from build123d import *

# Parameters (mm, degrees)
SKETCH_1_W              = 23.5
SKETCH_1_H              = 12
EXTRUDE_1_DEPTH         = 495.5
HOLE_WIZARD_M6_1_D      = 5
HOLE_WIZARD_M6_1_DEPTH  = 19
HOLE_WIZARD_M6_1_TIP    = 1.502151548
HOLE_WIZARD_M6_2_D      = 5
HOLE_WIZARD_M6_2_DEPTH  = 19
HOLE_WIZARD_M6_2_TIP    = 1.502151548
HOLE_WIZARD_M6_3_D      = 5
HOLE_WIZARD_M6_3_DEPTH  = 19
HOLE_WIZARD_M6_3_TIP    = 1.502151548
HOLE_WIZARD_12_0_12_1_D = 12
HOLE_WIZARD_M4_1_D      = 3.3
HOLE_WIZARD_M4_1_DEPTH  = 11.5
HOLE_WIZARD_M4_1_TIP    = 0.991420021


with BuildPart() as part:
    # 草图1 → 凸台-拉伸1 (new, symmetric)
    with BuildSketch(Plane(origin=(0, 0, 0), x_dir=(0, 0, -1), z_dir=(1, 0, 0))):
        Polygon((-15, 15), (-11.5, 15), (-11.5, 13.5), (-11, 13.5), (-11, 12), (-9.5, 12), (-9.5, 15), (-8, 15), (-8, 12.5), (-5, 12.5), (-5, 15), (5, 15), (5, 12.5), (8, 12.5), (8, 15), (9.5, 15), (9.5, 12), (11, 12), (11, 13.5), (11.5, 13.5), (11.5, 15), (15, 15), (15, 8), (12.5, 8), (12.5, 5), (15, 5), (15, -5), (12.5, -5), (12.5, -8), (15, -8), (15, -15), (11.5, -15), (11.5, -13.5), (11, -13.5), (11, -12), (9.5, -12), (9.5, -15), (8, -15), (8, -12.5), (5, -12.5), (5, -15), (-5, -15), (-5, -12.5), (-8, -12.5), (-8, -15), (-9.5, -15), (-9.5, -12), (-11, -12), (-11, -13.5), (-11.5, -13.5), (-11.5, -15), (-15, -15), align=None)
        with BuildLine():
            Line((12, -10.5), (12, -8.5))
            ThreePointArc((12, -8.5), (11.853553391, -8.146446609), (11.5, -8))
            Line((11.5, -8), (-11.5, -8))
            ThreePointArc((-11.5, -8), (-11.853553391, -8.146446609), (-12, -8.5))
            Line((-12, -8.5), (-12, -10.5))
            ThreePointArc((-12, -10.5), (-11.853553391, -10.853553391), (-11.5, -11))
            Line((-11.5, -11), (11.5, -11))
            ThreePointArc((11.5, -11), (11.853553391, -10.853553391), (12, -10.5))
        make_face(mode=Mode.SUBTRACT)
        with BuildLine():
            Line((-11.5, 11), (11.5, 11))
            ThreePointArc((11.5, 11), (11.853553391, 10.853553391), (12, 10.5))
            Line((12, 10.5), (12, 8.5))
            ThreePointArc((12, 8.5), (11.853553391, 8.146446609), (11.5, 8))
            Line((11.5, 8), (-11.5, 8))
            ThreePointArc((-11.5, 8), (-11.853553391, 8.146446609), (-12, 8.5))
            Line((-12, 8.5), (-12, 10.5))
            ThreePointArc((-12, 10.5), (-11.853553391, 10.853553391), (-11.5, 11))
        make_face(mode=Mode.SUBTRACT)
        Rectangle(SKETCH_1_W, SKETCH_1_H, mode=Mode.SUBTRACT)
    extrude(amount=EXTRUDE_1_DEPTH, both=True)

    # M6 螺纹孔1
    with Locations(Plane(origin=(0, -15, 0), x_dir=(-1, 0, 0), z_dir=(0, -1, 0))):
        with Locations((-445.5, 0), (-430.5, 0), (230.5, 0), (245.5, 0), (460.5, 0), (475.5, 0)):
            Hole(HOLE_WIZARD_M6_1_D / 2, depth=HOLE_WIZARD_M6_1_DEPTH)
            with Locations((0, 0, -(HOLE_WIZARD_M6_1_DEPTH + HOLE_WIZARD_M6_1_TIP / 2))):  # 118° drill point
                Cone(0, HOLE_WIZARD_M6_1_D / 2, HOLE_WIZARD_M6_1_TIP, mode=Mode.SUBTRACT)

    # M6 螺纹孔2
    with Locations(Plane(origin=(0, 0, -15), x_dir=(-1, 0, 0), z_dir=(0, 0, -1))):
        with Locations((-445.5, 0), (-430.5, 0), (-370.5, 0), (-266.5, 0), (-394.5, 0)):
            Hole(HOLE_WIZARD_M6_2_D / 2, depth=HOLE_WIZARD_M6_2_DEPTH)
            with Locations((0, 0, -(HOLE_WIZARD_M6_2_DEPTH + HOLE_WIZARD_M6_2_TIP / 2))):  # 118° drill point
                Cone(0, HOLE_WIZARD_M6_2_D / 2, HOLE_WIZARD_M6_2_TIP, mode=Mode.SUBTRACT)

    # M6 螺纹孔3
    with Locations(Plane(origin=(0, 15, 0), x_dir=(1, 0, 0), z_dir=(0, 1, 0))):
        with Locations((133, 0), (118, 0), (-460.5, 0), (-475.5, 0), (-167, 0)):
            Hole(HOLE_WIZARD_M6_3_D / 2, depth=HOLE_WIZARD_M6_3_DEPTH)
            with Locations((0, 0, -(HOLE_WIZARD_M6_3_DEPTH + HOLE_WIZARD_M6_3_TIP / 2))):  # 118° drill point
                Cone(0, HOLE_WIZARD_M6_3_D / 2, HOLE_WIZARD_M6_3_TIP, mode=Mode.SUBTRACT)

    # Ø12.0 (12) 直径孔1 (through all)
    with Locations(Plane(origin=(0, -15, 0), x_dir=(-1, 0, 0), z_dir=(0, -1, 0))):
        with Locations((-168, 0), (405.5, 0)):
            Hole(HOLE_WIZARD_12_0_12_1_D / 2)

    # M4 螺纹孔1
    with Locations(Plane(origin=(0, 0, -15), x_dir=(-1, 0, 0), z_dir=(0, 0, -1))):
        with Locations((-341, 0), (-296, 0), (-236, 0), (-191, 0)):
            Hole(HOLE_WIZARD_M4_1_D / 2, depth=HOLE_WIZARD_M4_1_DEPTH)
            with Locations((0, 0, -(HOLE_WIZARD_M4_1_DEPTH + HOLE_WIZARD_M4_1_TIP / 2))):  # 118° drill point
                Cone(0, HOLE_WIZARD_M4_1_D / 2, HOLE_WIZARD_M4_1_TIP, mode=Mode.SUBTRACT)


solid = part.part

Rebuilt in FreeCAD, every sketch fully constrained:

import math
import FreeCAD as App
import Part
import Sketcher
from FreeCAD import Vector

doc = App.newDocument("Part")
body = doc.addObject("PartDesign::Body", "Body")

sketch1 = doc.addObject("Sketcher::SketchObject", "Sketch")
body.addObject(sketch1)
sketch1.AttachmentSupport = (doc.YZ_Plane, [""])
sketch1.MapMode = "FlatFace"
sketch1.addGeometry(Part.LineSegment(Vector(15, 11.5, 0), Vector(15, 15, 0)), False)
sketch1.addGeometry(Part.LineSegment(Vector(15, 15, 0), Vector(-15, 15, 0)), False)
sketch1.addGeometry(Part.LineSegment(Vector(-15, 15, 0), Vector(-15, 11.5, 0)), False)
sketch1.addGeometry(Part.LineSegment(Vector(-15, 11.5, 0), Vector(-13.5, 11.5, 0)), False)
sketch1.addGeometry(Part.LineSegment(Vector(-13.5, 11.5, 0), Vector(-13.5, 11, 0)), False)
sketch1.addGeometry(Part.LineSegment(Vector(-13.5, 11, 0), Vector(-12, 11, 0)), False)
sketch1.addGeometry(Part.LineSegment(Vector(-12, 11, 0), Vector(-12, 9.5, 0)), False)
sketch1.addGeometry(Part.LineSegment(Vector(-12, 9.5, 0), Vector(-15, 9.5, 0)), False)
sketch1.addGeometry(Part.LineSegment(Vector(-15, 9.5, 0), Vector(-15, 8, 0)), False)
sketch1.addGeometry(Part.LineSegment(Vector(-15, 8, 0), Vector(-12.5, 8, 0)), False)
sketch1.addGeometry(Part.LineSegment(Vector(-12.5, 8, 0), Vector(-12.5, 5, 0)), False)
sketch1.addGeometry(Part.LineSegment(Vector(-12.5, 5, 0), Vector(-15, 5, 0)), False)
sketch1.addGeometry(Part.LineSegment(Vector(-15, 5, 0), Vector(-15, -5, 0)), False)
sketch1.addGeometry(Part.LineSegment(Vector(-15, -5, 0), Vector(-12.5, -5, 0)), False)
sketch1.addGeometry(Part.LineSegment(Vector(-12.5, -5, 0), Vector(-12.5, -8, 0)), False)
sketch1.addGeometry(Part.LineSegment(Vector(-12.5, -8, 0), Vector(-15, -8, 0)), False)
sketch1.addGeometry(Part.LineSegment(Vector(-15, -8, 0), Vector(-15, -9.5, 0)), False)
sketch1.addGeometry(Part.LineSegment(Vector(-15, -9.5, 0), Vector(-12, -9.5, 0)), False)
sketch1.addGeometry(Part.LineSegment(Vector(-12, -9.5, 0), Vector(-12, -11, 0)), False)
sketch1.addGeometry(Part.LineSegment(Vector(-12, -11, 0), Vector(-13.5, -11, 0)), False)
sketch1.addGeometry(Part.LineSegment(Vector(-13.5, -11, 0), Vector(-13.5, -11.5, 0)), False)
sketch1.addGeometry(Part.LineSegment(Vector(-13.5, -11.5, 0), Vector(-15, -11.5, 0)), False)
sketch1.addGeometry(Part.LineSegment(Vector(-15, -11.5, 0), Vector(-15, -15, 0)), False)
sketch1.addGeometry(Part.LineSegment(Vector(-15, -15, 0), Vector(-8, -15, 0)), False)
sketch1.addGeometry(Part.LineSegment(Vector(-8, -15, 0), Vector(-8, -12.5, 0)), False)
sketch1.addGeometry(Part.LineSegment(Vector(-8, -12.5, 0), Vector(-5, -12.5, 0)), False)
sketch1.addGeometry(Part.LineSegment(Vector(-5, -12.5, 0), Vector(-5, -15, 0)), False)
sketch1.addGeometry(Part.LineSegment(Vector(-5, -15, 0), Vector(5, -15, 0)), False)
sketch1.addGeometry(Part.LineSegment(Vector(5, -15, 0), Vector(5, -12.5, 0)), False)
sketch1.addGeometry(Part.LineSegment(Vector(5, -12.5, 0), Vector(8, -12.5, 0)), False)
sketch1.addGeometry(Part.LineSegment(Vector(8, -12.5, 0), Vector(8, -15, 0)), False)
sketch1.addGeometry(Part.LineSegment(Vector(8, -15, 0), Vector(15, -15, 0)), False)
sketch1.addGeometry(Part.LineSegment(Vector(15, -15, 0), Vector(15, -11.5, 0)), False)
sketch1.addGeometry(Part.LineSegment(Vector(15, -11.5, 0), Vector(13.5, -11.5, 0)), False)
sketch1.addGeometry(Part.LineSegment(Vector(13.5, -11.5, 0), Vector(13.5, -11, 0)), False)
sketch1.addGeometry(Part.LineSegment(Vector(13.5, -11, 0), Vector(12, -11, 0)), False)
sketch1.addGeometry(Part.LineSegment(Vector(12, -11, 0), Vector(12, -9.5, 0)), False)
sketch1.addGeometry(Part.LineSegment(Vector(12, -9.5, 0), Vector(15, -9.5, 0)), False)
sketch1.addGeometry(Part.LineSegment(Vector(15, -9.5, 0), Vector(15, -8, 0)), False)
sketch1.addGeometry(Part.LineSegment(Vector(15, -8, 0), Vector(12.5, -8, 0)), False)
sketch1.addGeometry(Part.LineSegment(Vector(12.5, -8, 0), Vector(12.5, -5, 0)), False)
sketch1.addGeometry(Part.LineSegment(Vector(12.5, -5, 0), Vector(15, -5, 0)), False)
sketch1.addGeometry(Part.LineSegment(Vector(15, -5, 0), Vector(15, 5, 0)), False)
sketch1.addGeometry(Part.LineSegment(Vector(15, 5, 0), Vector(12.5, 5, 0)), False)
sketch1.addGeometry(Part.LineSegment(Vector(12.5, 5, 0), Vector(12.5, 8, 0)), False)
sketch1.addGeometry(Part.LineSegment(Vector(12.5, 8, 0), Vector(15, 8, 0)), False)
sketch1.addGeometry(Part.LineSegment(Vector(15, 8, 0), Vector(15, 9.5, 0)), False)
sketch1.addGeometry(Part.LineSegment(Vector(15, 9.5, 0), Vector(12, 9.5, 0)), False)
sketch1.addGeometry(Part.LineSegment(Vector(12, 9.5, 0), Vector(12, 11, 0)), False)
sketch1.addGeometry(Part.LineSegment(Vector(12, 11, 0), Vector(13.5, 11, 0)), False)
sketch1.addGeometry(Part.LineSegment(Vector(13.5, 11, 0), Vector(13.5, 11.5, 0)), False)
sketch1.addGeometry(Part.LineSegment(Vector(13.5, 11.5, 0), Vector(15, 11.5, 0)), False)
sketch1.addGeometry(Part.ArcOfCircle(Part.Circle(Vector(-10.5, -11.5, 0), Vector(0, 0, 1), 0.5), math.radians(180), math.radians(270)), False)
sketch1.addGeometry(Part.LineSegment(Vector(-11, -11.5, 0), Vector(-11, 11.5, 0)), False)
sketch1.addGeometry(Part.ArcOfCircle(Part.Circle(Vector(-10.5, 11.5, 0), Vector(0, 0, 1), 0.5), math.radians(90), math.radians(180)), False)
sketch1.addGeometry(Part.LineSegment(Vector(-10.5, 12, 0), Vector(-8.5, 12, 0)), False)
sketch1.addGeometry(Part.ArcOfCircle(Part.Circle(Vector(-8.5, 11.5, 0), Vector(0, 0, 1), 0.5), math.radians(0), math.radians(90)), False)
sketch1.addGeometry(Part.LineSegment(Vector(-8, 11.5, 0), Vector(-8, -11.5, 0)), False)
sketch1.addGeometry(Part.ArcOfCircle(Part.Circle(Vector(-8.5, -11.5, 0), Vector(0, 0, 1), 0.5), math.radians(-90), math.radians(0)), False)
sketch1.addGeometry(Part.LineSegment(Vector(-8.5, -12, 0), Vector(-10.5, -12, 0)), False)
sketch1.addGeometry(Part.LineSegment(Vector(-6, 11.75, 0), Vector(6, 11.75, 0)), False)
sketch1.addGeometry(Part.LineSegment(Vector(6, 11.75, 0), Vector(6, -11.75, 0)), False)
sketch1.addGeometry(Part.LineSegment(Vector(6, -11.75, 0), Vector(-6, -11.75, 0)), False)
sketch1.addGeometry(Part.LineSegment(Vector(-6, -11.75, 0), Vector(-6, 11.75, 0)), False)
sketch1.addGeometry(Part.LineSegment(Vector(11, 11.5, 0), Vector(11, -11.5, 0)), False)
sketch1.addGeometry(Part.ArcOfCircle(Part.Circle(Vector(10.5, -11.5, 0), Vector(0, 0, 1), 0.5), math.radians(-90), math.radians(0)), False)
sketch1.addGeometry(Part.LineSegment(Vector(10.5, -12, 0), Vector(8.5, -12, 0)), False)
sketch1.addGeometry(Part.ArcOfCircle(Part.Circle(Vector(8.5, -11.5, 0), Vector(0, 0, 1), 0.5), math.radians(180), math.radians(270)), False)
sketch1.addGeometry(Part.LineSegment(Vector(8, -11.5, 0), Vector(8, 11.5, 0)), False)
sketch1.addGeometry(Part.ArcOfCircle(Part.Circle(Vector(8.5, 11.5, 0), Vector(0, 0, 1), 0.5), math.radians(90), math.radians(180)), False)
sketch1.addGeometry(Part.LineSegment(Vector(8.5, 12, 0), Vector(10.5, 12, 0)), False)
sketch1.addGeometry(Part.ArcOfCircle(Part.Circle(Vector(10.5, 11.5, 0), Vector(0, 0, 1), 0.5), math.radians(0), math.radians(90)), False)
sketch1.addConstraint(Sketcher.Constraint("Coincident", 0, 2, 1, 1))
sketch1.addConstraint(Sketcher.Constraint("Coincident", 1, 2, 2, 1))
sketch1.addConstraint(Sketcher.Constraint("Coincident", 2, 2, 3, 1))
sketch1.addConstraint(Sketcher.Constraint("Coincident", 3, 2, 4, 1))
sketch1.addConstraint(Sketcher.Constraint("Coincident", 4, 2, 5, 1))
sketch1.addConstraint(Sketcher.Constraint("Coincident", 5, 2, 6, 1))
sketch1.addConstraint(Sketcher.Constraint("Coincident", 6, 2, 7, 1))
sketch1.addConstraint(Sketcher.Constraint("Coincident", 7, 2, 8, 1))
sketch1.addConstraint(Sketcher.Constraint("Coincident", 8, 2, 9, 1))
sketch1.addConstraint(Sketcher.Constraint("Coincident", 9, 2, 10, 1))
sketch1.addConstraint(Sketcher.Constraint("Coincident", 10, 2, 11, 1))
sketch1.addConstraint(Sketcher.Constraint("Coincident", 11, 2, 12, 1))
sketch1.addConstraint(Sketcher.Constraint("Coincident", 12, 2, 13, 1))
sketch1.addConstraint(Sketcher.Constraint("Coincident", 13, 2, 14, 1))
sketch1.addConstraint(Sketcher.Constraint("Coincident", 14, 2, 15, 1))
sketch1.addConstraint(Sketcher.Constraint("Coincident", 15, 2, 16, 1))
sketch1.addConstraint(Sketcher.Constraint("Coincident", 16, 2, 17, 1))
sketch1.addConstraint(Sketcher.Constraint("Coincident", 17, 2, 18, 1))
sketch1.addConstraint(Sketcher.Constraint("Coincident", 18, 2, 19, 1))
sketch1.addConstraint(Sketcher.Constraint("Coincident", 19, 2, 20, 1))
sketch1.addConstraint(Sketcher.Constraint("Coincident", 20, 2, 21, 1))
sketch1.addConstraint(Sketcher.Constraint("Coincident", 21, 2, 22, 1))
sketch1.addConstraint(Sketcher.Constraint("Coincident", 22, 2, 23, 1))
sketch1.addConstraint(Sketcher.Constraint("Coincident", 23, 2, 24, 1))
sketch1.addConstraint(Sketcher.Constraint("Coincident", 24, 2, 25, 1))
sketch1.addConstraint(Sketcher.Constraint("Coincident", 25, 2, 26, 1))
sketch1.addConstraint(Sketcher.Constraint("Coincident", 26, 2, 27, 1))
sketch1.addConstraint(Sketcher.Constraint("Coincident", 27, 2, 28, 1))
sketch1.addConstraint(Sketcher.Constraint("Coincident", 28, 2, 29, 1))
sketch1.addConstraint(Sketcher.Constraint("Coincident", 29, 2, 30, 1))
sketch1.addConstraint(Sketcher.Constraint("Coincident", 30, 2, 31, 1))
sketch1.addConstraint(Sketcher.Constraint("Coincident", 31, 2, 32, 1))
sketch1.addConstraint(Sketcher.Constraint("Coincident", 32, 2, 33, 1))
sketch1.addConstraint(Sketcher.Constraint("Coincident", 33, 2, 34, 1))
sketch1.addConstraint(Sketcher.Constraint("Coincident", 34, 2, 35, 1))
sketch1.addConstraint(Sketcher.Constraint("Coincident", 35, 2, 36, 1))
sketch1.addConstraint(Sketcher.Constraint("Coincident", 36, 2, 37, 1))
sketch1.addConstraint(Sketcher.Constraint("Coincident", 37, 2, 38, 1))
sketch1.addConstraint(Sketcher.Constraint("Coincident", 38, 2, 39, 1))
sketch1.addConstraint(Sketcher.Constraint("Coincident", 39, 2, 40, 1))
sketch1.addConstraint(Sketcher.Constraint("Coincident", 40, 2, 41, 1))
sketch1.addConstraint(Sketcher.Constraint("Coincident", 41, 2, 42, 1))
sketch1.addConstraint(Sketcher.Constraint("Coincident", 42, 2, 43, 1))
sketch1.addConstraint(Sketcher.Constraint("Coincident", 43, 2, 44, 1))
sketch1.addConstraint(Sketcher.Constraint("Coincident", 44, 2, 45, 1))
sketch1.addConstraint(Sketcher.Constraint("Coincident", 45, 2, 46, 1))
sketch1.addConstraint(Sketcher.Constraint("Coincident", 46, 2, 47, 1))
sketch1.addConstraint(Sketcher.Constraint("Coincident", 47, 2, 48, 1))
sketch1.addConstraint(Sketcher.Constraint("Coincident", 48, 2, 49, 1))
sketch1.addConstraint(Sketcher.Constraint("Coincident", 49, 2, 50, 1))
sketch1.addConstraint(Sketcher.Constraint("Coincident", 50, 2, 51, 1))
sketch1.addConstraint(Sketcher.Constraint("Coincident", 51, 2, 0, 1))
sketch1.addConstraint(Sketcher.Constraint("Tangent", 52, 1, 53, 1))
sketch1.addConstraint(Sketcher.Constraint("Tangent", 53, 2, 54, 2))
sketch1.addConstraint(Sketcher.Constraint("Tangent", 54, 1, 55, 1))
sketch1.addConstraint(Sketcher.Constraint("Tangent", 55, 2, 56, 2))
sketch1.addConstraint(Sketcher.Constraint("Tangent", 56, 1, 57, 1))
sketch1.addConstraint(Sketcher.Constraint("Tangent", 57, 2, 58, 2))
sketch1.addConstraint(Sketcher.Constraint("Tangent", 58, 1, 59, 1))
sketch1.addConstraint(Sketcher.Constraint("Tangent", 59, 2, 52, 2))
sketch1.addConstraint(Sketcher.Constraint("Coincident", 60, 2, 61, 1))
sketch1.addConstraint(Sketcher.Constraint("Coincident", 61, 2, 62, 1))
sketch1.addConstraint(Sketcher.Constraint("Coincident", 62, 2, 63, 1))
sketch1.addConstraint(Sketcher.Constraint("Coincident", 63, 2, 60, 1))
sketch1.addConstraint(Sketcher.Constraint("Tangent", 64, 2, 65, 2))
sketch1.addConstraint(Sketcher.Constraint("Tangent", 65, 1, 66, 1))
sketch1.addConstraint(Sketcher.Constraint("Tangent", 66, 2, 67, 2))
sketch1.addConstraint(Sketcher.Constraint("Tangent", 67, 1, 68, 1))
sketch1.addConstraint(Sketcher.Constraint("Tangent", 68, 2, 69, 2))
sketch1.addConstraint(Sketcher.Constraint("Tangent", 69, 1, 70, 1))
sketch1.addConstraint(Sketcher.Constraint("Tangent", 70, 2, 71, 2))
sketch1.addConstraint(Sketcher.Constraint("Tangent", 71, 1, 64, 1))
sketch1.addConstraint(Sketcher.Constraint("Vertical", 0))
sketch1.addConstraint(Sketcher.Constraint("Horizontal", 1))
sketch1.addConstraint(Sketcher.Constraint("Vertical", 2))
sketch1.addConstraint(Sketcher.Constraint("Horizontal", 3))
sketch1.addConstraint(Sketcher.Constraint("Vertical", 4))
sketch1.addConstraint(Sketcher.Constraint("Horizontal", 5))
sketch1.addConstraint(Sketcher.Constraint("Vertical", 6))
sketch1.addConstraint(Sketcher.Constraint("Horizontal", 7))
sketch1.addConstraint(Sketcher.Constraint("Vertical", 8))
sketch1.addConstraint(Sketcher.Constraint("Horizontal", 9))
sketch1.addConstraint(Sketcher.Constraint("Vertical", 10))
sketch1.addConstraint(Sketcher.Constraint("Horizontal", 11))
sketch1.addConstraint(Sketcher.Constraint("Vertical", 12))
sketch1.addConstraint(Sketcher.Constraint("Horizontal", 13))
sketch1.addConstraint(Sketcher.Constraint("Vertical", 14))
sketch1.addConstraint(Sketcher.Constraint("Horizontal", 15))
sketch1.addConstraint(Sketcher.Constraint("Vertical", 16))
sketch1.addConstraint(Sketcher.Constraint("Horizontal", 17))
sketch1.addConstraint(Sketcher.Constraint("Vertical", 18))
sketch1.addConstraint(Sketcher.Constraint("Horizontal", 19))
sketch1.addConstraint(Sketcher.Constraint("Vertical", 20))
sketch1.addConstraint(Sketcher.Constraint("Horizontal", 21))
sketch1.addConstraint(Sketcher.Constraint("Vertical", 22))
sketch1.addConstraint(Sketcher.Constraint("Horizontal", 23))
sketch1.addConstraint(Sketcher.Constraint("Vertical", 24))
sketch1.addConstraint(Sketcher.Constraint("Horizontal", 25))
sketch1.addConstraint(Sketcher.Constraint("Vertical", 26))
sketch1.addConstraint(Sketcher.Constraint("Horizontal", 27))
sketch1.addConstraint(Sketcher.Constraint("Vertical", 28))
sketch1.addConstraint(Sketcher.Constraint("Horizontal", 29))
sketch1.addConstraint(Sketcher.Constraint("Vertical", 30))
sketch1.addConstraint(Sketcher.Constraint("Horizontal", 31))
sketch1.addConstraint(Sketcher.Constraint("Vertical", 32))
sketch1.addConstraint(Sketcher.Constraint("Horizontal", 33))
sketch1.addConstraint(Sketcher.Constraint("Vertical", 34))
sketch1.addConstraint(Sketcher.Constraint("Horizontal", 35))
sketch1.addConstraint(Sketcher.Constraint("Vertical", 36))
sketch1.addConstraint(Sketcher.Constraint("Horizontal", 37))
sketch1.addConstraint(Sketcher.Constraint("Vertical", 38))
sketch1.addConstraint(Sketcher.Constraint("Horizontal", 39))
sketch1.addConstraint(Sketcher.Constraint("Vertical", 40))
sketch1.addConstraint(Sketcher.Constraint("Horizontal", 41))
sketch1.addConstraint(Sketcher.Constraint("Vertical", 42))
sketch1.addConstraint(Sketcher.Constraint("Horizontal", 43))
sketch1.addConstraint(Sketcher.Constraint("Vertical", 44))
sketch1.addConstraint(Sketcher.Constraint("Horizontal", 45))
sketch1.addConstraint(Sketcher.Constraint("Vertical", 46))
sketch1.addConstraint(Sketcher.Constraint("Horizontal", 47))
sketch1.addConstraint(Sketcher.Constraint("Vertical", 48))
sketch1.addConstraint(Sketcher.Constraint("Horizontal", 49))
sketch1.addConstraint(Sketcher.Constraint("Vertical", 50))
sketch1.addConstraint(Sketcher.Constraint("Horizontal", 51))
sketch1.addConstraint(Sketcher.Constraint("Vertical", 53))
sketch1.addConstraint(Sketcher.Constraint("Horizontal", 55))
sketch1.addConstraint(Sketcher.Constraint("Vertical", 57))
sketch1.addConstraint(Sketcher.Constraint("Horizontal", 59))
sketch1.addConstraint(Sketcher.Constraint("Horizontal", 60))
sketch1.addConstraint(Sketcher.Constraint("Vertical", 61))
sketch1.addConstraint(Sketcher.Constraint("Horizontal", 62))
sketch1.addConstraint(Sketcher.Constraint("Vertical", 63))
sketch1.addConstraint(Sketcher.Constraint("Vertical", 64))
sketch1.addConstraint(Sketcher.Constraint("Horizontal", 66))
sketch1.addConstraint(Sketcher.Constraint("Vertical", 68))
sketch1.addConstraint(Sketcher.Constraint("Horizontal", 70))
sketch1.addConstraint(Sketcher.Constraint("Equal", 52, 54))
sketch1.addConstraint(Sketcher.Constraint("Equal", 54, 56))
sketch1.addConstraint(Sketcher.Constraint("Equal", 56, 58))
sketch1.addConstraint(Sketcher.Constraint("Equal", 58, 65))
sketch1.addConstraint(Sketcher.Constraint("Equal", 65, 67))
sketch1.addConstraint(Sketcher.Constraint("Equal", 67, 69))
sketch1.addConstraint(Sketcher.Constraint("Equal", 69, 71))
sketch1.addConstraint(Sketcher.Constraint("Symmetric", 54, 3, 65, 3, -1, 1))
sketch1.addConstraint(Sketcher.Constraint("Symmetric", 58, 3, 69, 3, -1, 1))
sketch1.addConstraint(Sketcher.Constraint("Symmetric", 0, 2, 22, 2, -1, 1))
sketch1.addConstraint(Sketcher.Constraint("Symmetric", 1, 2, 31, 2, -1, 1))
sketch1.addConstraint(Sketcher.Constraint("Symmetric", 3, 2, 33, 2, -1, 1))
sketch1.addConstraint(Sketcher.Constraint("Symmetric", 5, 2, 35, 2, -1, 1))
sketch1.addConstraint(Sketcher.Constraint("Symmetric", 7, 2, 37, 2, -1, 1))
sketch1.addConstraint(Sketcher.Constraint("Symmetric", 9, 2, 39, 2, -1, 1))
sketch1.addConstraint(Sketcher.Constraint("Symmetric", 11, 2, 41, 2, -1, 1))
sketch1.addConstraint(Sketcher.Constraint("Symmetric", 13, 2, 43, 2, -1, 1))
sketch1.addConstraint(Sketcher.Constraint("Symmetric", 15, 2, 45, 2, -1, 1))
sketch1.addConstraint(Sketcher.Constraint("Symmetric", 17, 2, 47, 2, -1, 1))
sketch1.addConstraint(Sketcher.Constraint("Symmetric", 19, 2, 49, 2, -1, 1))
sketch1.addConstraint(Sketcher.Constraint("Symmetric", 60, 2, 62, 2, -1, 1))
sketch1.addConstraint(Sketcher.Constraint("Symmetric", 25, 2, 28, 2, -2))
sketch1.addConstraint(Sketcher.Constraint("Symmetric", 21, 2, 32, 2, -2))
sketch1.addConstraint(Sketcher.Constraint("Symmetric", 19, 2, 34, 2, -2))
sketch1.addConstraint(Sketcher.Constraint("Symmetric", 17, 2, 36, 2, -2))
sketch1.addConstraint(Sketcher.Constraint("Symmetric", 15, 2, 38, 2, -2))
sketch1.addConstraint(Sketcher.Constraint("Symmetric", 13, 2, 40, 2, -2))
sketch1.addConstraint(Sketcher.Constraint("Horizontal", 58, 3, 65, 3))
sketch1.addConstraint(Sketcher.Constraint("Horizontal", 71, 3, 2, 2))
sketch1.addConstraint(Sketcher.Constraint("Horizontal", 23, 2, 26, 2))
sketch1.addConstraint(Sketcher.Constraint("Horizontal", 3, 2, 50, 2))
sketch1.addConstraint(Sketcher.Constraint("Vertical", 2, 2, 7, 2))
sketch1.addConstraint(Sketcher.Constraint("Vertical", 8, 2, 11, 2))
sketch1.addConstraint(Sketcher.Constraint("Vertical", 24, 2, 56, 1))
sketch1.addConstraint(Sketcher.Constraint("Vertical", 30, 2, 67, 1))
sketch1.addConstraint(Sketcher.Constraint("Equal", 3, 5))
sketch1.addConstraint(Sketcher.Constraint("Equal", 17, 25))
sketch1.addConstraint(Sketcher.Constraint("Equal", 51, 6))
sketch1.addConstraint(Sketcher.Constraint("Equal", 6, 8))
sketch1.addConstraint(Sketcher.Constraint("Equal", 47, 10))
sketch1.addConstraint(Sketcher.Constraint("Equal", 27, 12))
sketch1.addConstraint(Sketcher.Constraint("Equal", 45, 24))
sketch1.addConstraint(Sketcher.Constraint("Radius", 52, 0.5))
sketch1.addConstraint(Sketcher.Constraint("DistanceX", 1, 2, 1, 1, 30.0))
sketch1.addConstraint(Sketcher.Constraint("DistanceX", 7, 2, 7, 1, 3.0))
sketch1.addConstraint(Sketcher.Constraint("DistanceX", 23, 1, 23, 2, 7.0))
sketch1.addConstraint(Sketcher.Constraint("DistanceX", 55, 1, 55, 2, 2.0))
sketch1.addConstraint(Sketcher.Constraint("DistanceX", 60, 1, 60, 2, 12.0))
sketch1.addConstraint(Sketcher.Constraint("DistanceY", 53, 1, 53, 2, 23.0))
sketch1.addConstraint(Sketcher.Constraint("DistanceX", 9, 1, 9, 2, 2.5))
sketch1.addConstraint(Sketcher.Constraint("DistanceY", 0, 1, 0, 2, 3.5))
sketch1.addConstraint(Sketcher.Constraint("DistanceY", 61, 2, 61, 1, 23.5))
pad1 = doc.addObject("PartDesign::Pad", "Pad")
body.addObject(pad1)
pad1.Profile = sketch1
pad1.Length = 991
pad1.Midplane = True

sketch2 = doc.addObject("Sketcher::SketchObject", "Sketch001")
body.addObject(sketch2)
sketch2.AttachmentSupport = (doc.XZ_Plane, [""])
sketch2.MapMode = "FlatFace"
sketch2.AttachmentOffset = App.Placement(Vector(0, 0, 15), App.Rotation())
sketch2.addGeometry(Part.Circle(Vector(445.5, 0, 0), Vector(0, 0, 1), 2.5), False)
sketch2.addGeometry(Part.Circle(Vector(430.5, 0, 0), Vector(0, 0, 1), 2.5), False)
sketch2.addGeometry(Part.Circle(Vector(-230.5, 0, 0), Vector(0, 0, 1), 2.5), False)
sketch2.addGeometry(Part.Circle(Vector(-245.5, 0, 0), Vector(0, 0, 1), 2.5), False)
sketch2.addGeometry(Part.Circle(Vector(-460.5, 0, 0), Vector(0, 0, 1), 2.5), False)
sketch2.addGeometry(Part.Circle(Vector(-475.5, 0, 0), Vector(0, 0, 1), 2.5), False)
sketch2.addConstraint(Sketcher.Constraint("Equal", 0, 1))
sketch2.addConstraint(Sketcher.Constraint("Equal", 1, 2))
sketch2.addConstraint(Sketcher.Constraint("Equal", 2, 3))
sketch2.addConstraint(Sketcher.Constraint("Equal", 3, 4))
sketch2.addConstraint(Sketcher.Constraint("Equal", 4, 5))
sketch2.addConstraint(Sketcher.Constraint("PointOnObject", 0, 3, -1))
sketch2.addConstraint(Sketcher.Constraint("PointOnObject", 1, 3, -1))
sketch2.addConstraint(Sketcher.Constraint("PointOnObject", 2, 3, -1))
sketch2.addConstraint(Sketcher.Constraint("PointOnObject", 3, 3, -1))
sketch2.addConstraint(Sketcher.Constraint("PointOnObject", 4, 3, -1))
sketch2.addConstraint(Sketcher.Constraint("PointOnObject", 5, 3, -1))
sketch2.addConstraint(Sketcher.Constraint("Diameter", 0, 5.0))
sketch2.addConstraint(Sketcher.Constraint("DistanceX", 1, 3, 0, 3, 15.0))
sketch2.addConstraint(Sketcher.Constraint("DistanceX", 2, 3, 1, 3, 661.0))
sketch2.addConstraint(Sketcher.Constraint("DistanceX", 3, 3, 2, 3, 15.0))
sketch2.addConstraint(Sketcher.Constraint("DistanceX", 4, 3, 3, 3, 215.0))
sketch2.addConstraint(Sketcher.Constraint("DistanceX", 5, 3, 4, 3, 15.0))
sketch2.addConstraint(Sketcher.Constraint("DistanceX", -1, 1, 0, 3, 445.5))
doc.recompute()
hole = doc.addObject("PartDesign::Hole", "Hole")
body.addObject(hole)
hole.Profile = sketch2
hole.ThreadType = "None"
hole.Diameter = 5
hole.DepthType = "Dimension"
hole.Depth = 19
hole.DrillPoint = "Angled"
hole.DrillPointAngle = 118

sketch3 = doc.addObject("Sketcher::SketchObject", "Sketch002")
body.addObject(sketch3)
sketch3.AttachmentSupport = (doc.XY_Plane, [""])
sketch3.MapMode = "FlatFace"
sketch3.AttachmentOffset = App.Placement(Vector(0, 0, -15), App.Rotation())
sketch3.addGeometry(Part.Circle(Vector(445.5, 0, 0), Vector(0, 0, 1), 2.5), False)
sketch3.addGeometry(Part.Circle(Vector(430.5, 0, 0), Vector(0, 0, 1), 2.5), False)
sketch3.addGeometry(Part.Circle(Vector(370.5, 0, 0), Vector(0, 0, 1), 2.5), False)
sketch3.addGeometry(Part.Circle(Vector(266.5, 0, 0), Vector(0, 0, 1), 2.5), False)
sketch3.addGeometry(Part.Circle(Vector(394.5, 0, 0), Vector(0, 0, 1), 2.5), False)
sketch3.addConstraint(Sketcher.Constraint("Equal", 0, 1))
sketch3.addConstraint(Sketcher.Constraint("Equal", 1, 2))
sketch3.addConstraint(Sketcher.Constraint("Equal", 2, 3))
sketch3.addConstraint(Sketcher.Constraint("Equal", 3, 4))
sketch3.addConstraint(Sketcher.Constraint("PointOnObject", 0, 3, -1))
sketch3.addConstraint(Sketcher.Constraint("PointOnObject", 1, 3, -1))
sketch3.addConstraint(Sketcher.Constraint("PointOnObject", 2, 3, -1))
sketch3.addConstraint(Sketcher.Constraint("PointOnObject", 3, 3, -1))
sketch3.addConstraint(Sketcher.Constraint("PointOnObject", 4, 3, -1))
sketch3.addConstraint(Sketcher.Constraint("Diameter", 0, 5.0))
sketch3.addConstraint(Sketcher.Constraint("DistanceX", 1, 3, 0, 3, 15.0))
sketch3.addConstraint(Sketcher.Constraint("DistanceX", 2, 3, 1, 3, 60.0))
sketch3.addConstraint(Sketcher.Constraint("DistanceX", 3, 3, 2, 3, 104.0))
sketch3.addConstraint(Sketcher.Constraint("DistanceX", 2, 3, 4, 3, 24.0))
sketch3.addConstraint(Sketcher.Constraint("DistanceX", -1, 1, 0, 3, 445.5))
doc.recompute()
hole2 = doc.addObject("PartDesign::Hole", "Hole001")
body.addObject(hole2)
hole2.Profile = sketch3
hole2.ThreadType = "None"
hole2.Diameter = 5
hole2.DepthType = "Dimension"
hole2.Depth = 19
hole2.DrillPoint = "Angled"
hole2.DrillPointAngle = 118
hole2.Reversed = True

sketch4 = doc.addObject("Sketcher::SketchObject", "Sketch003")
body.addObject(sketch4)
sketch4.AttachmentSupport = (doc.XZ_Plane, [""])
sketch4.MapMode = "FlatFace"
sketch4.AttachmentOffset = App.Placement(Vector(0, 0, -15), App.Rotation())
sketch4.addGeometry(Part.Circle(Vector(133, 0, 0), Vector(0, 0, 1), 2.5), False)
sketch4.addGeometry(Part.Circle(Vector(118, 0, 0), Vector(0, 0, 1), 2.5), False)
sketch4.addGeometry(Part.Circle(Vector(-460.5, 0, 0), Vector(0, 0, 1), 2.5), False)
sketch4.addGeometry(Part.Circle(Vector(-475.5, 0, 0), Vector(0, 0, 1), 2.5), False)
sketch4.addGeometry(Part.Circle(Vector(-167, 0, 0), Vector(0, 0, 1), 2.5), False)
sketch4.addConstraint(Sketcher.Constraint("Equal", 0, 1))
sketch4.addConstraint(Sketcher.Constraint("Equal", 1, 2))
sketch4.addConstraint(Sketcher.Constraint("Equal", 2, 3))
sketch4.addConstraint(Sketcher.Constraint("Equal", 3, 4))
sketch4.addConstraint(Sketcher.Constraint("PointOnObject", 0, 3, -1))
sketch4.addConstraint(Sketcher.Constraint("PointOnObject", 1, 3, -1))
sketch4.addConstraint(Sketcher.Constraint("PointOnObject", 2, 3, -1))
sketch4.addConstraint(Sketcher.Constraint("PointOnObject", 3, 3, -1))
sketch4.addConstraint(Sketcher.Constraint("PointOnObject", 4, 3, -1))
sketch4.addConstraint(Sketcher.Constraint("Diameter", 0, 5.0))
sketch4.addConstraint(Sketcher.Constraint("DistanceX", -1, 1, 0, 3, 133.0))
sketch4.addConstraint(Sketcher.Constraint("DistanceX", -1, 1, 1, 3, 118.0))
sketch4.addConstraint(Sketcher.Constraint("DistanceX", 4, 3, -1, 1, 167.0))
sketch4.addConstraint(Sketcher.Constraint("DistanceX", 3, 3, 2, 3, 15.0))
sketch4.addConstraint(Sketcher.Constraint("DistanceX", 2, 3, -1, 1, 460.5))
doc.recompute()
hole3 = doc.addObject("PartDesign::Hole", "Hole002")
body.addObject(hole3)
hole3.Profile = sketch4
hole3.ThreadType = "None"
hole3.Diameter = 5
hole3.DepthType = "Dimension"
hole3.Depth = 19
hole3.DrillPoint = "Angled"
hole3.DrillPointAngle = 118
hole3.Reversed = True

sketch5 = doc.addObject("Sketcher::SketchObject", "Sketch004")
body.addObject(sketch5)
sketch5.AttachmentSupport = (doc.XZ_Plane, [""])
sketch5.MapMode = "FlatFace"
sketch5.AttachmentOffset = App.Placement(Vector(0, 0, 15), App.Rotation())
sketch5.addGeometry(Part.Circle(Vector(168, 0, 0), Vector(0, 0, 1), 6), False)
sketch5.addGeometry(Part.Circle(Vector(-406, 0, 0), Vector(0, 0, 1), 6), False)
sketch5.addConstraint(Sketcher.Constraint("Equal", 0, 1))
sketch5.addConstraint(Sketcher.Constraint("PointOnObject", 0, 3, -1))
sketch5.addConstraint(Sketcher.Constraint("PointOnObject", 1, 3, -1))
sketch5.addConstraint(Sketcher.Constraint("Diameter", 0, 12.0))
sketch5.addConstraint(Sketcher.Constraint("DistanceX", -1, 1, 0, 3, 168.0))
sketch5.addConstraint(Sketcher.Constraint("DistanceX", 1, 3, -1, 1, 405.5))
doc.recompute()
hole4 = doc.addObject("PartDesign::Hole", "Hole003")
body.addObject(hole4)
hole4.Profile = sketch5
hole4.ThreadType = "None"
hole4.Diameter = 12
hole4.DepthType = "ThroughAll"

sketch6 = doc.addObject("Sketcher::SketchObject", "Sketch005")
body.addObject(sketch6)
sketch6.AttachmentSupport = (doc.XY_Plane, [""])
sketch6.MapMode = "FlatFace"
sketch6.AttachmentOffset = App.Placement(Vector(0, 0, -15), App.Rotation())
sketch6.addGeometry(Part.Circle(Vector(341, 0, 0), Vector(0, 0, 1), 1.6), False)
sketch6.addGeometry(Part.Circle(Vector(296, 0, 0), Vector(0, 0, 1), 1.6), False)
sketch6.addGeometry(Part.Circle(Vector(236, 0, 0), Vector(0, 0, 1), 1.6), False)
sketch6.addGeometry(Part.Circle(Vector(191, 0, 0), Vector(0, 0, 1), 1.6), False)
sketch6.addConstraint(Sketcher.Constraint("Equal", 0, 1))
sketch6.addConstraint(Sketcher.Constraint("Equal", 1, 2))
sketch6.addConstraint(Sketcher.Constraint("Equal", 2, 3))
sketch6.addConstraint(Sketcher.Constraint("PointOnObject", 0, 3, -1))
sketch6.addConstraint(Sketcher.Constraint("PointOnObject", 1, 3, -1))
sketch6.addConstraint(Sketcher.Constraint("PointOnObject", 2, 3, -1))
sketch6.addConstraint(Sketcher.Constraint("PointOnObject", 3, 3, -1))
sketch6.addConstraint(Sketcher.Constraint("Diameter", 0, 3.3))
sketch6.addConstraint(Sketcher.Constraint("DistanceX", -1, 1, 0, 3, 341.0))
sketch6.addConstraint(Sketcher.Constraint("DistanceX", -1, 1, 1, 3, 296.0))
sketch6.addConstraint(Sketcher.Constraint("DistanceX", -1, 1, 2, 3, 236.0))
sketch6.addConstraint(Sketcher.Constraint("DistanceX", -1, 1, 3, 3, 191.0))
doc.recompute()
hole5 = doc.addObject("PartDesign::Hole", "Hole004")
body.addObject(hole5)
hole5.Profile = sketch6
hole5.ThreadType = "None"
hole5.Diameter = 3.3
hole5.DepthType = "Dimension"
hole5.Depth = 11.5
hole5.DrillPoint = "Angled"
hole5.DrillPointAngle = 118
hole5.Reversed = True

doc.recompute()
